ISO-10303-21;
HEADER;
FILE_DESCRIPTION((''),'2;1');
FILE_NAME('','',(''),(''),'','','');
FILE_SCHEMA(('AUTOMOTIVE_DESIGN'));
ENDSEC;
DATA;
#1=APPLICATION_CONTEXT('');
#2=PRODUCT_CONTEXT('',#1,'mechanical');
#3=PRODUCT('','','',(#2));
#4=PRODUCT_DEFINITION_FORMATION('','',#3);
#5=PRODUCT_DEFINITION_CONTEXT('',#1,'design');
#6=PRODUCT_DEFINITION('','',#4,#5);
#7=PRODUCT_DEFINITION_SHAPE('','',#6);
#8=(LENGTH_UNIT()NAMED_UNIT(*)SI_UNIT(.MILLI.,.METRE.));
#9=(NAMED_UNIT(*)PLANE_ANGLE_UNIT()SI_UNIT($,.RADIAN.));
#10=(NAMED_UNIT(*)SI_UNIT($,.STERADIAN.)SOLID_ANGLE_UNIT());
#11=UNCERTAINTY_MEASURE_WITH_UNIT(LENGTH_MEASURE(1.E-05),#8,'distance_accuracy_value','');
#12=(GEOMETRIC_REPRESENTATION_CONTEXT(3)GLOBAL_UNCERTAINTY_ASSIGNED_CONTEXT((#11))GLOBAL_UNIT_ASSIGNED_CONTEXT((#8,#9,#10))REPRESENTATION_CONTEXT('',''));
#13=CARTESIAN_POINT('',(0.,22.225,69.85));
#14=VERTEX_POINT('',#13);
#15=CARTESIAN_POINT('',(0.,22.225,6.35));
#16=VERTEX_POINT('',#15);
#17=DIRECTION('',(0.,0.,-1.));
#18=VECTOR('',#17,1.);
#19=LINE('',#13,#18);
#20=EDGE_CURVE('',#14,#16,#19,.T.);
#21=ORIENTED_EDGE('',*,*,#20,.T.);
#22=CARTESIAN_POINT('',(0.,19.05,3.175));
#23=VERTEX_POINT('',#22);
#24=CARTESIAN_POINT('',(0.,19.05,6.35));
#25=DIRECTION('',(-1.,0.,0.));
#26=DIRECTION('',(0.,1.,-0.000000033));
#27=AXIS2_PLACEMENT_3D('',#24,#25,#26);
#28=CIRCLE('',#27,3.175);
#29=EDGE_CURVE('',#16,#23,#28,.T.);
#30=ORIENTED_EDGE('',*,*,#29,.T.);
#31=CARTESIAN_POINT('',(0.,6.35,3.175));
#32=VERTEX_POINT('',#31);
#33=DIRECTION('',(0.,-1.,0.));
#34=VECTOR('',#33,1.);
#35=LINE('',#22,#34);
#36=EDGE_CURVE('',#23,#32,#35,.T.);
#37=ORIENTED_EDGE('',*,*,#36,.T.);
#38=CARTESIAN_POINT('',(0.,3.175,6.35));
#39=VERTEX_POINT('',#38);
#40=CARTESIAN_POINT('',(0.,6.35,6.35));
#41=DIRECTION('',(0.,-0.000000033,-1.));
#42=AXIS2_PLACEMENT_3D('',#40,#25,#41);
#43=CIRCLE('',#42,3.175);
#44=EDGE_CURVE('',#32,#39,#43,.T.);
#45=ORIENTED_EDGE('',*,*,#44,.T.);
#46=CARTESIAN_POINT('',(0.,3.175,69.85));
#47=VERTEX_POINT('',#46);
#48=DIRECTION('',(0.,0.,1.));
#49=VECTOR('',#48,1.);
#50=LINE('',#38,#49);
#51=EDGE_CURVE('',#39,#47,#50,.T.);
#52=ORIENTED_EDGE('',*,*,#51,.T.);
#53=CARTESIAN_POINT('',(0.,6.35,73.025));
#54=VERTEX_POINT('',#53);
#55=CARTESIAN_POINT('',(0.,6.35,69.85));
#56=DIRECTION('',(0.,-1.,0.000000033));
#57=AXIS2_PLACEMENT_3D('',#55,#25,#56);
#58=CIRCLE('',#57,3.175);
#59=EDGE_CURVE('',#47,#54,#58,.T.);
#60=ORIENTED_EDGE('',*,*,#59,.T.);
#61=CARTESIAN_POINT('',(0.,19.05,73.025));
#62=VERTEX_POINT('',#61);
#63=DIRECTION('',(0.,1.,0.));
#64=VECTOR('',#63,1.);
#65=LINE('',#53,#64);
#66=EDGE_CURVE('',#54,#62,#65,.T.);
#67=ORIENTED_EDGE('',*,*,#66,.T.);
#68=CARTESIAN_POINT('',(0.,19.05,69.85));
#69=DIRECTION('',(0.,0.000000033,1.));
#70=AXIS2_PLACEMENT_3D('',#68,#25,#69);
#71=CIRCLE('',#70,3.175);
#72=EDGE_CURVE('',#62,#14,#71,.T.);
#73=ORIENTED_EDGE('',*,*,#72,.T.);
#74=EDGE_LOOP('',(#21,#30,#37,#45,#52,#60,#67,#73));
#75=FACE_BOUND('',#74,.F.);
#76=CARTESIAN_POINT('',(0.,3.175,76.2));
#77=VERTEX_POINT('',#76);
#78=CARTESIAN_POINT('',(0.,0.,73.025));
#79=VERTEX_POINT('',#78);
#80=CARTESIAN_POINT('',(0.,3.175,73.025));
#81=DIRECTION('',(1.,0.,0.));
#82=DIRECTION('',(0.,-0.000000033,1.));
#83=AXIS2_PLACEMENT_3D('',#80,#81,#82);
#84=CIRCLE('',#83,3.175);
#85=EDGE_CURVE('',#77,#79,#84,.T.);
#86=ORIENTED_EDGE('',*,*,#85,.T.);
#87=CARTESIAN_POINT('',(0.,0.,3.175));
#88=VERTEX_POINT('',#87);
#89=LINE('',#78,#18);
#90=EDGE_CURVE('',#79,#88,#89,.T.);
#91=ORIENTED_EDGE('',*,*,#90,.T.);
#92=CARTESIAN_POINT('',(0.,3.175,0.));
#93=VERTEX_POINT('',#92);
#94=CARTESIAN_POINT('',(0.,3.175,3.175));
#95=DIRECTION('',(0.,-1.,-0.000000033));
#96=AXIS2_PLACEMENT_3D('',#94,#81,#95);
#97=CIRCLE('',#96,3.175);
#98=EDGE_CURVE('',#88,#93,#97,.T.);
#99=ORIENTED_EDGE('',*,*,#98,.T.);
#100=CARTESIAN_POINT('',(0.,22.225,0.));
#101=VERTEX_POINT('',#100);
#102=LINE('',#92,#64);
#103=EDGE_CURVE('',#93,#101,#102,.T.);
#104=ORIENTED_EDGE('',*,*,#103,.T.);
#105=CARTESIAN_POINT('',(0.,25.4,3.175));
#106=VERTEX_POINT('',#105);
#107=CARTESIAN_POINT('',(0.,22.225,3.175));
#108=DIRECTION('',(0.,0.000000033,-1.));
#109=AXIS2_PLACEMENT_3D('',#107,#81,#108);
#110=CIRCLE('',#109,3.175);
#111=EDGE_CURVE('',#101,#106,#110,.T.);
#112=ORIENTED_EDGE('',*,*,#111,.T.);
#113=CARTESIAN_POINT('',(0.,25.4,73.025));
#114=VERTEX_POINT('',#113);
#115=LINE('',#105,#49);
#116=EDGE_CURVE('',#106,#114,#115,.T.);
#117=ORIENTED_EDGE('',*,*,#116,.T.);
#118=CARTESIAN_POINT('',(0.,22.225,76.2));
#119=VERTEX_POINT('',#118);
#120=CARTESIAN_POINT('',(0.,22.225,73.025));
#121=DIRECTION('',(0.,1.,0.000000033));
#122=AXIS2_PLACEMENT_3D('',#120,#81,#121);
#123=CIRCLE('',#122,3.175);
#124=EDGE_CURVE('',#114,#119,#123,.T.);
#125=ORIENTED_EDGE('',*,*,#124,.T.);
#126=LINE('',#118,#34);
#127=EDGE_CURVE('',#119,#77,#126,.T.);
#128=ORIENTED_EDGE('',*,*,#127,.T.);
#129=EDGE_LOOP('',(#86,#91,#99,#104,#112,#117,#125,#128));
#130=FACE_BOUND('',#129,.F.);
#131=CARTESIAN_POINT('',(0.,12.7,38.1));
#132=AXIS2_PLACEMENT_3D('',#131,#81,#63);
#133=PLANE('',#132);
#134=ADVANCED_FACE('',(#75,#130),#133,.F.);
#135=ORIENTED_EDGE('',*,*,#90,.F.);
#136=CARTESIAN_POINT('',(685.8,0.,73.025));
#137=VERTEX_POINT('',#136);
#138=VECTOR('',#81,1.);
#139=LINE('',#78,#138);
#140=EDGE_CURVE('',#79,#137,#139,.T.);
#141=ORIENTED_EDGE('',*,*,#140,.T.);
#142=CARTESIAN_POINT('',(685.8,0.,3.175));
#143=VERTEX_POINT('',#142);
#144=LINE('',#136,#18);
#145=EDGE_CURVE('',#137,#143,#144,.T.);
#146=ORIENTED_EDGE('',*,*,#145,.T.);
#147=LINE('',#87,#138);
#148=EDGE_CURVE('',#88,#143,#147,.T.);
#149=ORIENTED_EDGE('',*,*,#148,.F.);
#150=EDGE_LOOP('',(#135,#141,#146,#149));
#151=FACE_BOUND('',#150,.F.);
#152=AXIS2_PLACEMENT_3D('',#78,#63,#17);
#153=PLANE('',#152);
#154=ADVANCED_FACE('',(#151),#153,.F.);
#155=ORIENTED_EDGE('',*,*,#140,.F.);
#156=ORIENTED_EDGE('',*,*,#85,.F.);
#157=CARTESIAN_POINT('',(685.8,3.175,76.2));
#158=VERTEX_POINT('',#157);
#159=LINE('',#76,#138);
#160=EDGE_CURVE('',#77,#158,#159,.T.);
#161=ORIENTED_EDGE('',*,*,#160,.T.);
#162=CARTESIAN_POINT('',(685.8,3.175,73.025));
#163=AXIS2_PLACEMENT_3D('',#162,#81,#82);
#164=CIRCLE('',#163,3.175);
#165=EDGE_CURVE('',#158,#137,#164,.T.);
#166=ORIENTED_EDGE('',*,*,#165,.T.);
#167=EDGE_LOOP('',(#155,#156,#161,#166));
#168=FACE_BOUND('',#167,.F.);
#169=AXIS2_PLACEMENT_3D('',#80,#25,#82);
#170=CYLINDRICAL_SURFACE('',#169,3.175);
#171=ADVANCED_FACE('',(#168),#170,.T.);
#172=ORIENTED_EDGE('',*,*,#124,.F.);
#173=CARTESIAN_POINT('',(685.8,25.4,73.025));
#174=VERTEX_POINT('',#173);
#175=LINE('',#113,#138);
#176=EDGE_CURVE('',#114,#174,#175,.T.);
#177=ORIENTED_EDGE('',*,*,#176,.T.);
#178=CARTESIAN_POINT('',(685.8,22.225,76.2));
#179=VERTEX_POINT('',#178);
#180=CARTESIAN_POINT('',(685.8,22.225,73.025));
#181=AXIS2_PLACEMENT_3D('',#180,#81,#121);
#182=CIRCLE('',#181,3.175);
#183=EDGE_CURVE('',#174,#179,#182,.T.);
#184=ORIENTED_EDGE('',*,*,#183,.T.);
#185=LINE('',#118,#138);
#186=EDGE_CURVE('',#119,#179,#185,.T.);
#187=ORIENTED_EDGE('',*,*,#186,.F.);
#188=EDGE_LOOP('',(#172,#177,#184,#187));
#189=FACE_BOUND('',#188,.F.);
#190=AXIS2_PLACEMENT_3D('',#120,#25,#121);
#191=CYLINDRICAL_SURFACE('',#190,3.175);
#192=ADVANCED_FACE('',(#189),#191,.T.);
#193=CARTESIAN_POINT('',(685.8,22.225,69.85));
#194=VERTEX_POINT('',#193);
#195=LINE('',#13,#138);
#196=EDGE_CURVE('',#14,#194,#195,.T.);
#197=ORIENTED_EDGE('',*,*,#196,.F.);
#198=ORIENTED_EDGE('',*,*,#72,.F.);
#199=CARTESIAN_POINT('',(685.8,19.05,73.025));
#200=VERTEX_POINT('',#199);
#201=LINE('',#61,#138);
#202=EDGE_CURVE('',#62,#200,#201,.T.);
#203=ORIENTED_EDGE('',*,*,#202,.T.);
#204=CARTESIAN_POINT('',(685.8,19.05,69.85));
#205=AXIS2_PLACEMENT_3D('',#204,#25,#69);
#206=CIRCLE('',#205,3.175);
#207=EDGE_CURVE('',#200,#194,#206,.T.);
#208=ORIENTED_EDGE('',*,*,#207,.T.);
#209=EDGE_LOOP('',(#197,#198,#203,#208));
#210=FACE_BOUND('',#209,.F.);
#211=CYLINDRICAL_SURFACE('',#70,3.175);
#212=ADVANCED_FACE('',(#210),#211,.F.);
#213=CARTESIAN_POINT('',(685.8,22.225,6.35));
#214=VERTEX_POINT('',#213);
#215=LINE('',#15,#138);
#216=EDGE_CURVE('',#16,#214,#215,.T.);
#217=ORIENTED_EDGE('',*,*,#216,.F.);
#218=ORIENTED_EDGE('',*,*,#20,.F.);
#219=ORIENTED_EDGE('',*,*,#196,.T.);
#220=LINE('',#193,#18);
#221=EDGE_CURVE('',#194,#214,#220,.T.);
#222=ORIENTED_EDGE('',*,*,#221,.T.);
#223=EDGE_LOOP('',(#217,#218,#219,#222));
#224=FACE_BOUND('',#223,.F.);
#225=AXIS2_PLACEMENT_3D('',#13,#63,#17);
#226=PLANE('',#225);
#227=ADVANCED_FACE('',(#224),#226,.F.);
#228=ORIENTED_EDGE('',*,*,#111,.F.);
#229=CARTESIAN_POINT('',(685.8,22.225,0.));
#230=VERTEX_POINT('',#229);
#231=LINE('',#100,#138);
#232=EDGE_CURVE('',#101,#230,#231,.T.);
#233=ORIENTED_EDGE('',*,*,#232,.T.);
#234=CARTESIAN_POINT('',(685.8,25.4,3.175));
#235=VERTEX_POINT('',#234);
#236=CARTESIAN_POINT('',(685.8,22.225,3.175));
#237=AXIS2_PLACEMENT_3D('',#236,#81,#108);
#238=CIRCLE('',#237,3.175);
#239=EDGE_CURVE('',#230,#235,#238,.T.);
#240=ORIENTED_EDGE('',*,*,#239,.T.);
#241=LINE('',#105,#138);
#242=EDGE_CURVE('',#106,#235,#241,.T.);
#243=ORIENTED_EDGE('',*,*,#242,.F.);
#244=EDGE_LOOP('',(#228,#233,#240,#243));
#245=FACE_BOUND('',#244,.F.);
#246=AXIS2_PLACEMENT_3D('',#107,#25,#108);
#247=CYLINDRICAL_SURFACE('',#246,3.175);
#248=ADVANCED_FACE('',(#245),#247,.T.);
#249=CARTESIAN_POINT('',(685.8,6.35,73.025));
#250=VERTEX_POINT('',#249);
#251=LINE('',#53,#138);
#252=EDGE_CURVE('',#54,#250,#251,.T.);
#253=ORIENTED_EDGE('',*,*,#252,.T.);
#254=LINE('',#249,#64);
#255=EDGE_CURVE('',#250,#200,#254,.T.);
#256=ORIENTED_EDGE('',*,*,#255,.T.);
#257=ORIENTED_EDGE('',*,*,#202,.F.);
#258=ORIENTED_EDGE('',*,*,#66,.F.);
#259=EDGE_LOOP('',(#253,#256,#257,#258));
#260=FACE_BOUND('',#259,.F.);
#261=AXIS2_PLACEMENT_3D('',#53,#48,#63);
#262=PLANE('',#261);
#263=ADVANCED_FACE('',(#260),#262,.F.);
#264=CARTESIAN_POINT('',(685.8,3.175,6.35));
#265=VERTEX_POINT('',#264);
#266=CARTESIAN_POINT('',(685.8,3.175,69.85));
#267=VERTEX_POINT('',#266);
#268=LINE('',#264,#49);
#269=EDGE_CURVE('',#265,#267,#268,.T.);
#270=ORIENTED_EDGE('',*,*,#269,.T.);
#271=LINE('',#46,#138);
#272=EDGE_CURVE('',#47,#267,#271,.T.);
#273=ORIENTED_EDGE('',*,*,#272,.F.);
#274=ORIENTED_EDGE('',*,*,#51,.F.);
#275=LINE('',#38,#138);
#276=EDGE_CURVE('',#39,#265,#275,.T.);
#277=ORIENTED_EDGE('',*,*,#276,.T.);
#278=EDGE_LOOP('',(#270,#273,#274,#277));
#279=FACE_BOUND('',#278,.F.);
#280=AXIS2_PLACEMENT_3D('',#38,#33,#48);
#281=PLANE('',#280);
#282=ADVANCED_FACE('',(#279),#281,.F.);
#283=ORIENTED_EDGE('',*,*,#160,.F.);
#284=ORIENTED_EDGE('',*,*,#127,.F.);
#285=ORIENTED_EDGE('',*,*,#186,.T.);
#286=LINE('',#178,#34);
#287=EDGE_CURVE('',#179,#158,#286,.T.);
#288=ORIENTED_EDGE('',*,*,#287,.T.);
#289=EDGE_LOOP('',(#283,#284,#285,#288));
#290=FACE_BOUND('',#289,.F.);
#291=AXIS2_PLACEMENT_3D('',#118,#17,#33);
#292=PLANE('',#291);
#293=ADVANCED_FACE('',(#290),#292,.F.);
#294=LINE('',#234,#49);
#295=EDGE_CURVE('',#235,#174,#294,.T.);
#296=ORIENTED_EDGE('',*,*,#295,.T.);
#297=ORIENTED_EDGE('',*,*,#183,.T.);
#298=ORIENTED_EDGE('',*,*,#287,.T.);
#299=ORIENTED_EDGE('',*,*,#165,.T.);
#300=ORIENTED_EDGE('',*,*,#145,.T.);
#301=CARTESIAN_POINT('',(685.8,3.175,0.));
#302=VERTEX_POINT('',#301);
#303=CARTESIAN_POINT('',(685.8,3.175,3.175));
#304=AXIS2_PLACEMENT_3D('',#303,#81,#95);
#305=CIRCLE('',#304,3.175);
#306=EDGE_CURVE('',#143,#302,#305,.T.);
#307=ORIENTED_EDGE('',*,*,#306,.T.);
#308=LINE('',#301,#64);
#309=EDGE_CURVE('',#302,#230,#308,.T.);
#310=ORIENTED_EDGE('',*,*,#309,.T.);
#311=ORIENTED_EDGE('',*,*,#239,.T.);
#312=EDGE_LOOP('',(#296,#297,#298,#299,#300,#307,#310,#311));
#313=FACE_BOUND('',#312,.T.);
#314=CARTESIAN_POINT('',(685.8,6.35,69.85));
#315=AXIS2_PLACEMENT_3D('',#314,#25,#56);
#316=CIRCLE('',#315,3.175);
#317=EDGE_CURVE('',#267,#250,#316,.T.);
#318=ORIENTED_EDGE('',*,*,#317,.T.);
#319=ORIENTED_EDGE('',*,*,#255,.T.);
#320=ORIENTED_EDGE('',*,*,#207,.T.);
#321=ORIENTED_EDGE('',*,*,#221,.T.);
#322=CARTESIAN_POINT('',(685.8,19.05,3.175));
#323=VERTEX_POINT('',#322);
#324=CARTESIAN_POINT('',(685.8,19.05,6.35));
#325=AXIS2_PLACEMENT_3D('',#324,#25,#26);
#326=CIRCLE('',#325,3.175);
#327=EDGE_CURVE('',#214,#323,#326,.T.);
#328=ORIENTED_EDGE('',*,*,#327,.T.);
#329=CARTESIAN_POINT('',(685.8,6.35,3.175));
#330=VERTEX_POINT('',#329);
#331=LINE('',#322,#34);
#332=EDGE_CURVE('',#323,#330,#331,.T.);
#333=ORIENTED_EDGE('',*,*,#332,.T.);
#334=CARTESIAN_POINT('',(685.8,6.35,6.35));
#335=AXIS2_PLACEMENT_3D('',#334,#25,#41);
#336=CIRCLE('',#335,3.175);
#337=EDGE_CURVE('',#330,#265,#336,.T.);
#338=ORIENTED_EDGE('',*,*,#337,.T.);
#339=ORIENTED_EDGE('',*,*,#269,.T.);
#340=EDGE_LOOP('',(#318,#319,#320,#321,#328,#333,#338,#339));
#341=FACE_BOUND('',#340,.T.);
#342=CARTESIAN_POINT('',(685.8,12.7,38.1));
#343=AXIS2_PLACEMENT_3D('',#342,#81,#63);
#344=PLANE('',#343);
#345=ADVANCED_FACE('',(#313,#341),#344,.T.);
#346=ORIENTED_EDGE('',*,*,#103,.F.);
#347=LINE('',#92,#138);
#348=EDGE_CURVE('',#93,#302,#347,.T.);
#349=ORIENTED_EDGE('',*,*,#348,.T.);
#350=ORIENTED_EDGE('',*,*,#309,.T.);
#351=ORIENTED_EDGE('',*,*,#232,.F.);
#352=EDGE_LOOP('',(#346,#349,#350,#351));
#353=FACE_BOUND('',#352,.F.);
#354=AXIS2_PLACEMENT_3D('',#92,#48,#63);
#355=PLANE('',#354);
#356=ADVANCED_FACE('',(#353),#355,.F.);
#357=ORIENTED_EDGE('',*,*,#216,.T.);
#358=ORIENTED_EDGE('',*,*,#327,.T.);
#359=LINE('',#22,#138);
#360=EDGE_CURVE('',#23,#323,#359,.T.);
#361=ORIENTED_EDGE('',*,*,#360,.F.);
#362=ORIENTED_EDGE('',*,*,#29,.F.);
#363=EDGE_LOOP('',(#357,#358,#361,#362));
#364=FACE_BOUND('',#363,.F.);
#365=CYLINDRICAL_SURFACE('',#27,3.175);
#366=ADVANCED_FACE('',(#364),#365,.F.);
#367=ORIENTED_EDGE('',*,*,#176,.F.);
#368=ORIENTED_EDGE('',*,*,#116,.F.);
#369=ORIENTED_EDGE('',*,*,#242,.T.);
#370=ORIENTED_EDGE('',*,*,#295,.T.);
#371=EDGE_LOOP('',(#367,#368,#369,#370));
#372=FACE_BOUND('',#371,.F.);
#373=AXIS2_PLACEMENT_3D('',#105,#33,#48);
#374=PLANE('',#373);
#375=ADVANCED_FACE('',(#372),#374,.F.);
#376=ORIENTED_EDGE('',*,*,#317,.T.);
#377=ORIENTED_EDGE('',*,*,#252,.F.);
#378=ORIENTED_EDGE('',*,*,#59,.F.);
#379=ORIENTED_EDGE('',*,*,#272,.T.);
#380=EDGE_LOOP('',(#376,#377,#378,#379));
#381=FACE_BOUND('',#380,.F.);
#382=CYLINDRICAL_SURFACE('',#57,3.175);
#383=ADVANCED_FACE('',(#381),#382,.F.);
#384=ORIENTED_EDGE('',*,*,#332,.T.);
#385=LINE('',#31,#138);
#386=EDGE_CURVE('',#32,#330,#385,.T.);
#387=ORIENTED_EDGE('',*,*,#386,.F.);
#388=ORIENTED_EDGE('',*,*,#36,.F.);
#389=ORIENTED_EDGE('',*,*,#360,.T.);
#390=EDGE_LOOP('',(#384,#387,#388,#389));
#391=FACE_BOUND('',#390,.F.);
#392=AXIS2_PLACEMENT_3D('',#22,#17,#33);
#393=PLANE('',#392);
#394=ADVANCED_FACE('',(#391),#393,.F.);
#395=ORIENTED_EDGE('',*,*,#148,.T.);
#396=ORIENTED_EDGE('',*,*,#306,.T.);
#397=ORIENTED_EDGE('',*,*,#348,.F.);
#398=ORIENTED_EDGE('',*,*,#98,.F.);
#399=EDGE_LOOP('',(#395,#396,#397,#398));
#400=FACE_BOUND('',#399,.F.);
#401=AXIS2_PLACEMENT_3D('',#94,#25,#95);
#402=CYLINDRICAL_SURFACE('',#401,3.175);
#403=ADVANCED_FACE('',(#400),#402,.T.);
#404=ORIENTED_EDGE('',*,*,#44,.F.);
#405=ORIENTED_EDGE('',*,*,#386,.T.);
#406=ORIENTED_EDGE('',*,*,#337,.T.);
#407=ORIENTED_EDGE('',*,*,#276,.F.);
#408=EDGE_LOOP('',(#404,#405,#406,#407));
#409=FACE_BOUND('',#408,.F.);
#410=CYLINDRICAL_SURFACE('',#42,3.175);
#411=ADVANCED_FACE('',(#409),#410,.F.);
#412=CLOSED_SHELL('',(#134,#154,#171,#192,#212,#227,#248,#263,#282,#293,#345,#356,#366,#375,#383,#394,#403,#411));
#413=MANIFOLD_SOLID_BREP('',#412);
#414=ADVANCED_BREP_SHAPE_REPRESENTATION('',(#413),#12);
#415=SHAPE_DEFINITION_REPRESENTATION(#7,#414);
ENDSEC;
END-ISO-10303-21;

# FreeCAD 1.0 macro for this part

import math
import FreeCAD as App
import Part
import Sketcher

V = App.Vector
Q = App.Units.Quantity

doc = App.newDocument("Part")
body = doc.addObject("PartDesign::Body", "Body")

# Sketch on YZ plane
sketch1 = body.newObject("Sketcher::SketchObject", "Sketch")
sketch1.AttachmentSupport = (doc.getObject("YZ_Plane"), [""])
sketch1.MapMode = "FlatFace"
sketch1.addGeometry(Part.ArcOfCircle(Part.Circle(V(3.2, 3.2, 0), V(0, 0, 1), 3.2), math.radians(-180), math.radians(-90)), False)
sketch1.addGeometry(Part.LineSegment(V(3.2, 0, 0), V(22.2, 0, 0)), False)
sketch1.addGeometry(Part.ArcOfCircle(Part.Circle(V(22.2, 3.2, 0), V(0, 0, 1), 3.2), math.radians(-90), math.radians(0)), False)
sketch1.addGeometry(Part.LineSegment(V(25.4, 3.2, 0), V(25.4, 73, 0)), False)
sketch1.addGeometry(Part.ArcOfCircle(Part.Circle(V(22.2, 73, 0), V(0, 0, 1), 3.2), math.radians(0), math.radians(90)), False)
sketch1.addGeometry(Part.LineSegment(V(22.2, 76.2, 0), V(3.2, 76.2, 0)), False)
sketch1.addGeometry(Part.ArcOfCircle(Part.Circle(V(3.2, 73, 0), V(0, 0, 1), 3.2), math.radians(90), math.radians(180)), False)
sketch1.addGeometry(Part.LineSegment(V(0, 73, 0), V(0, 3.2, 0)), False)
sketch1.addGeometry(Part.ArcOfCircle(Part.Circle(V(19, 6.4, 0), V(0, 0, 1), 3.2), math.radians(-90), math.radians(0)), False)
sketch1.addGeometry(Part.LineSegment(V(19.1, 3.2, 0), V(6.3, 3.2, 0)), False)
sketch1.addGeometry(Part.ArcOfCircle(Part.Circle(V(6.4, 6.4, 0), V(0, 0, 1), 3.2), math.radians(-180), math.radians(-90)), False)
sketch1.addGeometry(Part.LineSegment(V(3.2, 6.3, 0), V(3.2, 69.8, 0)), False)
sketch1.addGeometry(Part.ArcOfCircle(Part.Circle(V(6.4, 69.8, 0), V(0, 0, 1), 3.2), math.radians(90), math.radians(180)), False)
sketch1.addGeometry(Part.LineSegment(V(6.3, 73, 0), V(19.1, 73, 0)), False)
sketch1.addGeometry(Part.ArcOfCircle(Part.Circle(V(19, 69.8, 0), V(0, 0, 1), 3.2), math.radians(0), math.radians(90)), False)
sketch1.addGeometry(Part.LineSegment(V(22.2, 69.8, 0), V(22.2, 6.3, 0)), False)
sketch1.addConstraint(Sketcher.Constraint("Tangent", 0, 2, 1, 1))
sketch1.addConstraint(Sketcher.Constraint("Tangent", 1, 2, 2, 1))
sketch1.addConstraint(Sketcher.Constraint("Tangent", 2, 2, 3, 1))
sketch1.addConstraint(Sketcher.Constraint("Tangent", 3, 2, 4, 1))
sketch1.addConstraint(Sketcher.Constraint("Tangent", 4, 2, 5, 1))
sketch1.addConstraint(Sketcher.Constraint("Tangent", 5, 2, 6, 1))
sketch1.addConstraint(Sketcher.Constraint("Tangent", 6, 2, 7, 1))
sketch1.addConstraint(Sketcher.Constraint("Tangent", 7, 2, 0, 1))
sketch1.addConstraint(Sketcher.Constraint("Tangent", 8, 1, 9, 1))
sketch1.addConstraint(Sketcher.Constraint("Tangent", 9, 2, 10, 2))
sketch1.addConstraint(Sketcher.Constraint("Tangent", 10, 1, 11, 1))
sketch1.addConstraint(Sketcher.Constraint("Tangent", 11, 2, 12, 2))
sketch1.addConstraint(Sketcher.Constraint("Tangent", 12, 1, 13, 1))
sketch1.addConstraint(Sketcher.Constraint("Tangent", 13, 2, 14, 2))
sketch1.addConstraint(Sketcher.Constraint("Tangent", 14, 1, 15, 1))
sketch1.addConstraint(Sketcher.Constraint("Tangent", 15, 2, 8, 2))
sketch1.addConstraint(Sketcher.Constraint("Horizontal", 1))
sketch1.addConstraint(Sketcher.Constraint("Vertical", 3))
sketch1.addConstraint(Sketcher.Constraint("Horizontal", 5))
sketch1.addConstraint(Sketcher.Constraint("Vertical", 7))
sketch1.addConstraint(Sketcher.Constraint("Horizontal", 9))
sketch1.addConstraint(Sketcher.Constraint("Vertical", 11))
sketch1.addConstraint(Sketcher.Constraint("Horizontal", 13))
sketch1.addConstraint(Sketcher.Constraint("Vertical", 15))
sketch1.addConstraint(Sketcher.Constraint("Equal", 0, 2))
sketch1.addConstraint(Sketcher.Constraint("Equal", 2, 4))
sketch1.addConstraint(Sketcher.Constraint("Equal", 4, 6))
sketch1.addConstraint(Sketcher.Constraint("Equal", 6, 8))
sketch1.addConstraint(Sketcher.Constraint("Equal", 8, 10))
sketch1.addConstraint(Sketcher.Constraint("Equal", 10, 12))
sketch1.addConstraint(Sketcher.Constraint("Equal", 12, 14))
sketch1.addConstraint(Sketcher.Constraint("PointOnObject", 0, 2, -1))
sketch1.addConstraint(Sketcher.Constraint("PointOnObject", 6, 2, -2))
sketch1.addConstraint(Sketcher.Constraint("Horizontal", 7, 2, 8, 1))
sketch1.addConstraint(Sketcher.Constraint("Horizontal", 6, 2, 12, 1))
sketch1.addConstraint(Sketcher.Constraint("Vertical", 5, 2, 10, 1))
sketch1.addConstraint(Sketcher.Constraint("Vertical", 4, 2, 14, 1))
sketch1.addConstraint(Sketcher.Constraint("DistanceX", 9, 2, 9, 1, Q("0.5 in")))
sketch1.addConstraint(Sketcher.Constraint("DistanceY", 11, 1, 11, 2, Q("2.5 in")))
sketch1.addConstraint(Sketcher.Constraint("DistanceX", -1, 1, 2, 2, Q("1 in")))
pad1 = body.newObject("PartDesign::Pad", "Pad")
pad1.Profile = sketch1
pad1.Length = Q("27 in")

doc.recompute()
